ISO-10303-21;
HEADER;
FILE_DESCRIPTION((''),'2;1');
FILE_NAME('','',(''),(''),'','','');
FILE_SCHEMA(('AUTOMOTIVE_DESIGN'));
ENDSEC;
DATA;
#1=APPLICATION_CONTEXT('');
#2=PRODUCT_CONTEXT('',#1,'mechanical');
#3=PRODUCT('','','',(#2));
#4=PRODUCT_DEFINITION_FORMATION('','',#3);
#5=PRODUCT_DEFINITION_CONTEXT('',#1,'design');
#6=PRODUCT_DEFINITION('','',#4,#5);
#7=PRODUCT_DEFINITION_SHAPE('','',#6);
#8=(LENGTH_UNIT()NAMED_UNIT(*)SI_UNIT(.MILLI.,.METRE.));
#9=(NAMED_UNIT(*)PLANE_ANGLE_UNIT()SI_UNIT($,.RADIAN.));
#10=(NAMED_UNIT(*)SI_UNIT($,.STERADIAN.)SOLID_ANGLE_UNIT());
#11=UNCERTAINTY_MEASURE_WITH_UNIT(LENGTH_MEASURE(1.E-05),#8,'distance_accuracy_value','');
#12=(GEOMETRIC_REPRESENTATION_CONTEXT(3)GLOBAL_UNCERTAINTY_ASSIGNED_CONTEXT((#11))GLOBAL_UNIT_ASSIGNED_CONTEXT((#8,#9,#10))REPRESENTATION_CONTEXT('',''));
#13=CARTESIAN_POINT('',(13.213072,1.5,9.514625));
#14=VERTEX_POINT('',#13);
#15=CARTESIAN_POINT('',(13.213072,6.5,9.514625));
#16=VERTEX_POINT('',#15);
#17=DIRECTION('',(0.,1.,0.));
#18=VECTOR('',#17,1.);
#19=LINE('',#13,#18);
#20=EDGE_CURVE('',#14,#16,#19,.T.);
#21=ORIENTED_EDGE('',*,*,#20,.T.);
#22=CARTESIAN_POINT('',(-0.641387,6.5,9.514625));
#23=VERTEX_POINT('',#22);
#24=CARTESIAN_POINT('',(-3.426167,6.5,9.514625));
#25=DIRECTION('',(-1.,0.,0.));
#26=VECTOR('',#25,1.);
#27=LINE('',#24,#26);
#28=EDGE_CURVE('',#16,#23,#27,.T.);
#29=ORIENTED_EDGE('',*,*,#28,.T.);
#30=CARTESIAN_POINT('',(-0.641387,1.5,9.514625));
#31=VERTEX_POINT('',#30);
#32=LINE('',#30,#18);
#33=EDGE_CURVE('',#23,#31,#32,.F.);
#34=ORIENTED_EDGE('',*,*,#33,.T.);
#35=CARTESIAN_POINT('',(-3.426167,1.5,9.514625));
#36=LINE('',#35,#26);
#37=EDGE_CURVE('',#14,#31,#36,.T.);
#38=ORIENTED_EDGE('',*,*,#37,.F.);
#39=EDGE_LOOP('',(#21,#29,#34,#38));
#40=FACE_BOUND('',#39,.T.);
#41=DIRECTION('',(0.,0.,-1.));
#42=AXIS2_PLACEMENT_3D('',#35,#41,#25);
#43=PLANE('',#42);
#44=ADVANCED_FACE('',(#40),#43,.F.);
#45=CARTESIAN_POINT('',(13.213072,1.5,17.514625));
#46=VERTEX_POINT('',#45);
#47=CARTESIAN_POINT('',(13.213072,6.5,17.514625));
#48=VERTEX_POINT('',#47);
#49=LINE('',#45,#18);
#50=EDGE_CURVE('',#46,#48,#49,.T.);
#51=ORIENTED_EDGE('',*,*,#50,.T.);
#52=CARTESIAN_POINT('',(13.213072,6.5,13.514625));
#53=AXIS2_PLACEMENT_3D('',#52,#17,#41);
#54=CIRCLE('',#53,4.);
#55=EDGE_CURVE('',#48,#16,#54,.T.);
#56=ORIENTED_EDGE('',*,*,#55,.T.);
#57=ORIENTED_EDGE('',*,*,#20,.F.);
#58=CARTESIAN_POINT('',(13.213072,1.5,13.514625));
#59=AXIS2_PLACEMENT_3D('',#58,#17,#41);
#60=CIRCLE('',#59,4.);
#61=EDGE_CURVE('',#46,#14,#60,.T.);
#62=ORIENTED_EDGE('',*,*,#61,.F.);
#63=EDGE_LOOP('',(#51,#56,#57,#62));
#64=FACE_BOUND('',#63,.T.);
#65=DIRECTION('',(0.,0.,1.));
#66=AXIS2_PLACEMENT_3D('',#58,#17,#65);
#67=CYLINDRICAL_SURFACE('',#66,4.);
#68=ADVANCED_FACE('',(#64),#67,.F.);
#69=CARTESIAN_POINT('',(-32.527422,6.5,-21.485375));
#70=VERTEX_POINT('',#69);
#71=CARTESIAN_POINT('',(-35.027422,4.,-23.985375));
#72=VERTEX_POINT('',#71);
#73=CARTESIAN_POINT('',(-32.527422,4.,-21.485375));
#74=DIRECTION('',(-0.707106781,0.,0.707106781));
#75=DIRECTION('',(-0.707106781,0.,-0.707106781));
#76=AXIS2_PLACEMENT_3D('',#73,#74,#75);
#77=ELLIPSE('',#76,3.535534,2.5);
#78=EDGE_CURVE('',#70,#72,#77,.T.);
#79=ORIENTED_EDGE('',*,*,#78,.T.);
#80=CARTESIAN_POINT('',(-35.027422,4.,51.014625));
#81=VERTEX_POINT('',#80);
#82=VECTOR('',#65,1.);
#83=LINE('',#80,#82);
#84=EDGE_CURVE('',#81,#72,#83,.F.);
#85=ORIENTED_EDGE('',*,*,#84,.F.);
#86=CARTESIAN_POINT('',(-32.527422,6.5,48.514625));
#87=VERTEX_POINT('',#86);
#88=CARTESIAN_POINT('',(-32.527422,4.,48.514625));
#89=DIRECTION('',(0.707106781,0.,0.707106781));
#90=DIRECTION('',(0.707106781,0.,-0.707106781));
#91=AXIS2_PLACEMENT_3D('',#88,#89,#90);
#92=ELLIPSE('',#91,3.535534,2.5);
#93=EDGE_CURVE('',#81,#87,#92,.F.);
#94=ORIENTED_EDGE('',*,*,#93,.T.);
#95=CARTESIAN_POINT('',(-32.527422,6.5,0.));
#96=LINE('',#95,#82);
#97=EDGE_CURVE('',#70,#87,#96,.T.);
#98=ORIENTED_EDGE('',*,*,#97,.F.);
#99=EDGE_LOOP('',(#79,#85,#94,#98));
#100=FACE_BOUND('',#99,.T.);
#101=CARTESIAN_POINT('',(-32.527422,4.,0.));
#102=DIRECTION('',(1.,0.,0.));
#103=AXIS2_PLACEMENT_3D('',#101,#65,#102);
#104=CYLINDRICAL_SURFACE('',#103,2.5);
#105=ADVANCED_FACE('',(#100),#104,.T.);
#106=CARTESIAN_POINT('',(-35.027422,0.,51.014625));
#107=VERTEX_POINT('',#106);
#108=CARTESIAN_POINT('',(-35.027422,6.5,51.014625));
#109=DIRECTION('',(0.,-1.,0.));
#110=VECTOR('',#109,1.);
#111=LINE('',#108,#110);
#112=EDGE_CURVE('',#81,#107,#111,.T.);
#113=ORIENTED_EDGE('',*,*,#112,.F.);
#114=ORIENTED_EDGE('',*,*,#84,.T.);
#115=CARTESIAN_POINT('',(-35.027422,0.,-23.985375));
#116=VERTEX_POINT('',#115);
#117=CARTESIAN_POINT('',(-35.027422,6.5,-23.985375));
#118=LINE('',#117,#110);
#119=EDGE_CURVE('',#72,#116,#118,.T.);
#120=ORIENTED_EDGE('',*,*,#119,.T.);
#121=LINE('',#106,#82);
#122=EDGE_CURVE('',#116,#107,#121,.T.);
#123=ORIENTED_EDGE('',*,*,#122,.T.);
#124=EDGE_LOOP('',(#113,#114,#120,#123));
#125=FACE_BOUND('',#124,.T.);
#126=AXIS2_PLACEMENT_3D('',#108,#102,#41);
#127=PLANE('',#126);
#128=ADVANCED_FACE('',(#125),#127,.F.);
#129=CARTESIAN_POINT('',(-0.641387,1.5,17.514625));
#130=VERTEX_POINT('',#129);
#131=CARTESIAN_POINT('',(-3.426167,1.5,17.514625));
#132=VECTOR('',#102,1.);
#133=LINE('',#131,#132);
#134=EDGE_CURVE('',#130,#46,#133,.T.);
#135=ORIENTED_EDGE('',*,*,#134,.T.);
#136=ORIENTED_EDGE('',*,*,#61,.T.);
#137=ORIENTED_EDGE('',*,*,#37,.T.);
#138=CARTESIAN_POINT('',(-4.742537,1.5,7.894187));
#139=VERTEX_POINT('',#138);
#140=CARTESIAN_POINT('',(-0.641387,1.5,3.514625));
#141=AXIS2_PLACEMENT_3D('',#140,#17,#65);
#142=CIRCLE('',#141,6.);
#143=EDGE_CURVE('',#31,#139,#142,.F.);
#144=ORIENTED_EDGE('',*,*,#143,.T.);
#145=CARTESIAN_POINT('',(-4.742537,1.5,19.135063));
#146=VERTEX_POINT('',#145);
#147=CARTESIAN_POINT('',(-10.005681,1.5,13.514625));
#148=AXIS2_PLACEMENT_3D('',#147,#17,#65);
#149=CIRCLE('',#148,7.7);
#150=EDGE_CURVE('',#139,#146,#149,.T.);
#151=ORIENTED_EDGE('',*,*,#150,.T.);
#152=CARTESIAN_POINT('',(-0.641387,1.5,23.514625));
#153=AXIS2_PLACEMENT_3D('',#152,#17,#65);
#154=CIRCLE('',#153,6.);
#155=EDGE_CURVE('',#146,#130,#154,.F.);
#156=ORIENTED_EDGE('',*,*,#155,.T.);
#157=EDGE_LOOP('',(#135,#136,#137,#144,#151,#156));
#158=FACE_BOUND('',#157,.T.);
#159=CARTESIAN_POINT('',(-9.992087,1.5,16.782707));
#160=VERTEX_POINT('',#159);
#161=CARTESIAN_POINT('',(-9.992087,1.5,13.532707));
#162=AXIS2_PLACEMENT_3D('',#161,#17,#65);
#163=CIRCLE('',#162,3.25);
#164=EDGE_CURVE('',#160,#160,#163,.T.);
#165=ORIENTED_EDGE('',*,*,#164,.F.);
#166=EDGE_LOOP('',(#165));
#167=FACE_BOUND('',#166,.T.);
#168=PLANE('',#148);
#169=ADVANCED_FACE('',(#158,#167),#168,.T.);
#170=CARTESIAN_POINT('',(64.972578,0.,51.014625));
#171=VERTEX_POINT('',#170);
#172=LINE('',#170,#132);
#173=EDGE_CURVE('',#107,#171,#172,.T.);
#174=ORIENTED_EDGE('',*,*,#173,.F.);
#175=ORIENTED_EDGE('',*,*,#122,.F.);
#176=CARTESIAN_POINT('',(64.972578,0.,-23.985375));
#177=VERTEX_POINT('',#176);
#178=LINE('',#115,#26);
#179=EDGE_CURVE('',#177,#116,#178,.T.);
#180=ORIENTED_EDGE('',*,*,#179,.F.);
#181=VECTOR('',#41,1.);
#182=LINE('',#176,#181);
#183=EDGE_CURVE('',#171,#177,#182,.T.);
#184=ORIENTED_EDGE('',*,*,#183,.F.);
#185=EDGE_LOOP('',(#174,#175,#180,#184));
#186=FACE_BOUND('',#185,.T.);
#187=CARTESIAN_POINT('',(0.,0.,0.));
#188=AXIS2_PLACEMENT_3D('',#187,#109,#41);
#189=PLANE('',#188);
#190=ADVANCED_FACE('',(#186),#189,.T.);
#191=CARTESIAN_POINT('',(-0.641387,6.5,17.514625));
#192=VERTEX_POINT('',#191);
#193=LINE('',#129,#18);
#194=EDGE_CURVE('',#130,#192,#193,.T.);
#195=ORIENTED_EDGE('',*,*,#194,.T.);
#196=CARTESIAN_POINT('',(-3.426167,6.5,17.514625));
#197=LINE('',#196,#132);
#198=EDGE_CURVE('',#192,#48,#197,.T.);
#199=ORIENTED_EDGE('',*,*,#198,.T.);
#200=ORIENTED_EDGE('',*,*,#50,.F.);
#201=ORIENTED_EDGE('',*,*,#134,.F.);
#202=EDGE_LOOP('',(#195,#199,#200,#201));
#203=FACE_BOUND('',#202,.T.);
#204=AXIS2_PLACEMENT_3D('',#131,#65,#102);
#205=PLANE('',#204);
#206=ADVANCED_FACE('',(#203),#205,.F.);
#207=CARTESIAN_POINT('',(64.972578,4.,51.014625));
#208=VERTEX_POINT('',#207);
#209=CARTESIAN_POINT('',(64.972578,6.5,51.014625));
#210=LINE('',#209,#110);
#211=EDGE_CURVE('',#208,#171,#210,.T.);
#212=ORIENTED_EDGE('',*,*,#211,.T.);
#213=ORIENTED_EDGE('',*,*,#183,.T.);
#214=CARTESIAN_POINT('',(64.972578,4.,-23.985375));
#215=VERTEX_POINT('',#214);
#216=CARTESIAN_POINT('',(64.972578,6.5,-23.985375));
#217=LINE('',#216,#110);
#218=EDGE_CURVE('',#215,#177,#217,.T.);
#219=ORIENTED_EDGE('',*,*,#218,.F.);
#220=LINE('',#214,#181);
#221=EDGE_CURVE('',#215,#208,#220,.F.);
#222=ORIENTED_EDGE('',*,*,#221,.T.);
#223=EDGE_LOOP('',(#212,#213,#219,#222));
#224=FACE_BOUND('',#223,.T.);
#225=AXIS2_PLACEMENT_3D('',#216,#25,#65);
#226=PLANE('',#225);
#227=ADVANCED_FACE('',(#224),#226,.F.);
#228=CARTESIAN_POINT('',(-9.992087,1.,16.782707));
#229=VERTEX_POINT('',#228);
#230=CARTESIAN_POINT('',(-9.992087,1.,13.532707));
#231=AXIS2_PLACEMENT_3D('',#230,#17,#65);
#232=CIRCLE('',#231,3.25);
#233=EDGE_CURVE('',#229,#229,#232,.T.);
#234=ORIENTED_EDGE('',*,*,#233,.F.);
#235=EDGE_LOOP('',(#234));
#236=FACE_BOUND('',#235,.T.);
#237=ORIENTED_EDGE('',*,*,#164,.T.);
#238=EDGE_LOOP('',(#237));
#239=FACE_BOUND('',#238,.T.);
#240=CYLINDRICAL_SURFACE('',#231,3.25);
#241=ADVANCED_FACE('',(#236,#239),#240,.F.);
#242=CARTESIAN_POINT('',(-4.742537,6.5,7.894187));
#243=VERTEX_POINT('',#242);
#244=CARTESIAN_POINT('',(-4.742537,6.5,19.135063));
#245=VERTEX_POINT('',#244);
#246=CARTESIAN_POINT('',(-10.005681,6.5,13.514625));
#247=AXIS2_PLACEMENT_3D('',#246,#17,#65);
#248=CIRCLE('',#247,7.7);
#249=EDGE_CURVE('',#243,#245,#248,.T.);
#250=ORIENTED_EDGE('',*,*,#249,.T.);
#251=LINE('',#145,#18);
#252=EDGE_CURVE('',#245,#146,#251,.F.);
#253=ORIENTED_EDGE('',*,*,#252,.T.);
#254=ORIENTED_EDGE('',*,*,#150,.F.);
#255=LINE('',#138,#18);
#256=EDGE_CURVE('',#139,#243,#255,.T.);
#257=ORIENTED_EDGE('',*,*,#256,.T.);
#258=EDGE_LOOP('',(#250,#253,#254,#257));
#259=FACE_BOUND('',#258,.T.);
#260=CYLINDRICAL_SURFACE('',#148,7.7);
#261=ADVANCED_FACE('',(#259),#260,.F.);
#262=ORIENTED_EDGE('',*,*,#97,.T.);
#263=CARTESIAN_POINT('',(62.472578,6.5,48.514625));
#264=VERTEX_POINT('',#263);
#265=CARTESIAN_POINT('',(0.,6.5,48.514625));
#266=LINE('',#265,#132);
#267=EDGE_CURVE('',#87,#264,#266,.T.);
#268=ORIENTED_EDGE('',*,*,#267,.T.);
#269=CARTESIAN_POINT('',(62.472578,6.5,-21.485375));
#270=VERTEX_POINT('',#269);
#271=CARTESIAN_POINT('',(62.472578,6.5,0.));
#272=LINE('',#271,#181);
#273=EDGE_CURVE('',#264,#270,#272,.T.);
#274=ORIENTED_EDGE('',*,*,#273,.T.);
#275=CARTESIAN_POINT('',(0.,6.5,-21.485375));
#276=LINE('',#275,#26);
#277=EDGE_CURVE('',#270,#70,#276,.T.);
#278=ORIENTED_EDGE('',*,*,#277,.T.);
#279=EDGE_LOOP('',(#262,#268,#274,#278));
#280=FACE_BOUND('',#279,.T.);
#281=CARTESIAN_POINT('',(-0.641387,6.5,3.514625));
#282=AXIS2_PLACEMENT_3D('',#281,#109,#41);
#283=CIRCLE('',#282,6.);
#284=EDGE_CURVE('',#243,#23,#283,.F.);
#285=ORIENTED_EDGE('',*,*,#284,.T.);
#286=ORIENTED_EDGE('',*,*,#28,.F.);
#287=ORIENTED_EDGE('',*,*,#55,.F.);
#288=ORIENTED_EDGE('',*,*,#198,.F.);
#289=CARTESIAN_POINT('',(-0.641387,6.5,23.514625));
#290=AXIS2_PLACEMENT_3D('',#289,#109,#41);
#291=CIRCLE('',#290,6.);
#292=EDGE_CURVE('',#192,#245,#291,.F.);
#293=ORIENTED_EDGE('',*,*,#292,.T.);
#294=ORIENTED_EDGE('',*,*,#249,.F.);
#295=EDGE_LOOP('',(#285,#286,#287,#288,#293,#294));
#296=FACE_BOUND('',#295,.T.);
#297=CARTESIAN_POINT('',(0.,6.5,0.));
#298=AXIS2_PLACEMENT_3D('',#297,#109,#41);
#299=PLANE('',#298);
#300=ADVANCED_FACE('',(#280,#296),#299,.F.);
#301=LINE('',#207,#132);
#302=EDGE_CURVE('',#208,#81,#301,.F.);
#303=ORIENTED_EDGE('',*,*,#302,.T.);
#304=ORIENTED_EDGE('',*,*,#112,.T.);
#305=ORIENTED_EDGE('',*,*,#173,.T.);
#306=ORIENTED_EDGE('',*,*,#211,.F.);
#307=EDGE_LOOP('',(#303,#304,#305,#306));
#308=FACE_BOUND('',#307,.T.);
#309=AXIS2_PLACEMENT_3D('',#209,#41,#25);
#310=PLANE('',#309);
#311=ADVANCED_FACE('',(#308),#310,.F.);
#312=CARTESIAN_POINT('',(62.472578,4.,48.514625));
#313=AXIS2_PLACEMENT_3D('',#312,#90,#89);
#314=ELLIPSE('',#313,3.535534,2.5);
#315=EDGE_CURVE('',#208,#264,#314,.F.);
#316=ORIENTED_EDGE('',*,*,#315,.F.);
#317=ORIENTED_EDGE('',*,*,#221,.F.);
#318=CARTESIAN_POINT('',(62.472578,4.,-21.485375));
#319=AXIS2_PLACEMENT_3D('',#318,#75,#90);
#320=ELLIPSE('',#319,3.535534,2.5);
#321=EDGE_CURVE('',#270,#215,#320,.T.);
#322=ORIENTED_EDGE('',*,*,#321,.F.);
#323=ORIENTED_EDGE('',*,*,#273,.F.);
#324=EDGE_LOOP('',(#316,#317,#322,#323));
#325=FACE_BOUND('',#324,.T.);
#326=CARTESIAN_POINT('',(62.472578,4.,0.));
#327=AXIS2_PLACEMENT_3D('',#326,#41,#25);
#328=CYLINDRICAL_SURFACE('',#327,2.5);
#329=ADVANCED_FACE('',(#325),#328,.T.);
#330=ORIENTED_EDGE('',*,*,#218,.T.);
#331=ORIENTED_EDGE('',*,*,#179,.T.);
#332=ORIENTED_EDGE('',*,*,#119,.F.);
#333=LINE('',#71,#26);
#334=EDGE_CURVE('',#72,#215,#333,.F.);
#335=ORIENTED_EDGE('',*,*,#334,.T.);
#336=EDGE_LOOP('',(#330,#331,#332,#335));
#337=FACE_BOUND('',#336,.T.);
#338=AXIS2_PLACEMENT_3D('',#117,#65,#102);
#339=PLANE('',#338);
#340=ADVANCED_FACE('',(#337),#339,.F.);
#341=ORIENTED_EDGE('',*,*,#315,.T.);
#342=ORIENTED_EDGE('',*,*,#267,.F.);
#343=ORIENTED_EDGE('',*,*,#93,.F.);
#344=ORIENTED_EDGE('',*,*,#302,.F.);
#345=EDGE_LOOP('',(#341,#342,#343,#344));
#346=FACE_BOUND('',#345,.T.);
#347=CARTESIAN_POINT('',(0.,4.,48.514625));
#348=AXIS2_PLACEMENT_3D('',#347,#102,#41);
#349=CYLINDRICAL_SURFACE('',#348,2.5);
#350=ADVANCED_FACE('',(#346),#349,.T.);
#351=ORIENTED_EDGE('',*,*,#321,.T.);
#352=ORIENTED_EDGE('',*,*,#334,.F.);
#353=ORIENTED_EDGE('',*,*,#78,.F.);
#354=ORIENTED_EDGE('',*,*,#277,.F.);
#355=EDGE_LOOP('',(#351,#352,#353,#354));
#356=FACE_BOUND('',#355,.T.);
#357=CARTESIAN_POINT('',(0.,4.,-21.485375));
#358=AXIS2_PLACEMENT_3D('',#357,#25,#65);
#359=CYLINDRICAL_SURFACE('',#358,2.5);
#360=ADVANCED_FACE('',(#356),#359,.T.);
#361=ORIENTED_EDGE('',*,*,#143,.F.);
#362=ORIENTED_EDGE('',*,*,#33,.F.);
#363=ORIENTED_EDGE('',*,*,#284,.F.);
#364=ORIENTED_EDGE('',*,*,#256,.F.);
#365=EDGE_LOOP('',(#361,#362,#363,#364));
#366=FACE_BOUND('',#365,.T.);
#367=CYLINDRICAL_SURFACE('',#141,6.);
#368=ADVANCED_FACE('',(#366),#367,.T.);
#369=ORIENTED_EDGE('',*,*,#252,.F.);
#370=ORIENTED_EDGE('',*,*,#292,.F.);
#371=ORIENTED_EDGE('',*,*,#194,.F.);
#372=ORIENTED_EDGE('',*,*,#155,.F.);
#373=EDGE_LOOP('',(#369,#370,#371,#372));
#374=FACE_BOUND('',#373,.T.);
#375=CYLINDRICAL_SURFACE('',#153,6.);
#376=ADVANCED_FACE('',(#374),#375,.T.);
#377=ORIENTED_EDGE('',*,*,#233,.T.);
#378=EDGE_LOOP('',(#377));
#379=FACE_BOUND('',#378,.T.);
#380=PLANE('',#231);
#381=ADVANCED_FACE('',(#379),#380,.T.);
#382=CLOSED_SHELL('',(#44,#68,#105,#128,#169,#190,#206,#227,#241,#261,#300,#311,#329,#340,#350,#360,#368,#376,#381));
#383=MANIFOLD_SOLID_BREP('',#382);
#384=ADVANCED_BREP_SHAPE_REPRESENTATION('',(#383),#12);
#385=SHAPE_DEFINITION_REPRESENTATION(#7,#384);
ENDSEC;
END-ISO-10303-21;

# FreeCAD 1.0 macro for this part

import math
import FreeCAD as App
import Part
import Sketcher
Q = App.Units.Quantity


def edges_at(feature, points):
    """Names of the edges that pass closest to the given points."""
    edges = feature.Shape.Edges
    near = lambda p: min(range(len(edges)), key=lambda i: edges[i].distToShape(Part.Vertex(*p))[0])
    return sorted({f"Edge{near(p) + 1}" for p in points})

doc = App.newDocument("Part")
params = doc.addObject("Spreadsheet::Sheet", "Params")
for row, (alias, value) in enumerate([
    ("sketch1_width", "100 mm"),
    ("sketch1_height", "75 mm"),
    ("pad1_length", "6.5 mm"),
    ("fillet_radius", "2.5 mm"),
    ("sketch2_radius", "4 mm"),
    ("sketch2_radius2", "7.7 mm"),
    ("pocket1_length", "5 mm"),
    ("fillet2_radius", "6 mm"),
    ("sketch3_diameter", "6.5 mm"),
    ("pocket2_length", "0.5 mm"),
], start=1):
    params.set(f"A{row}", alias)
    params.set(f"B{row}", "=" + value)
    params.setAlias(f"B{row}", alias)

body = doc.addObject("PartDesign::Body", "Body")

# Sketch on XZ plane
sketch1 = body.newObject("Sketcher::SketchObject", "Sketch")
sketch1.AttachmentSupport = (doc.getObject("XZ_Plane"), [""])
sketch1.MapMode = "FlatFace"
sketch1.addGeometry(Part.LineSegment(App.Vector(-35, -24, 0), App.Vector(-35, 51, 0)), False)
sketch1.addGeometry(Part.LineSegment(App.Vector(-35, 51, 0), App.Vector(65, 51, 0)), False)
sketch1.addGeometry(Part.LineSegment(App.Vector(65, 51, 0), App.Vector(65, -24, 0)), False)
sketch1.addGeometry(Part.LineSegment(App.Vector(65, -24, 0), App.Vector(-35, -24, 0)), False)
sketch1.addConstraint(Sketcher.Constraint("Coincident", 0, 2, 1, 1))
sketch1.addConstraint(Sketcher.Constraint("Coincident", 1, 2, 2, 1))
sketch1.addConstraint(Sketcher.Constraint("Coincident", 2, 2, 3, 1))
sketch1.addConstraint(Sketcher.Constraint("Coincident", 3, 2, 0, 1))
sketch1.addConstraint(Sketcher.Constraint("Vertical", 0))
sketch1.addConstraint(Sketcher.Constraint("Horizontal", 1))
sketch1.addConstraint(Sketcher.Constraint("Vertical", 2))
sketch1.addConstraint(Sketcher.Constraint("Horizontal", 3))
sketch1.addConstraint(Sketcher.Constraint("DistanceX", 1, 1, 1, 2, Q("100 mm")))
sketch1.addConstraint(Sketcher.Constraint("DistanceY", 0, 1, 0, 2, Q("75 mm")))
sketch1.addConstraint(Sketcher.Constraint("DistanceX", 0, 2, -1, 1, Q("35.027422 mm")))
sketch1.addConstraint(Sketcher.Constraint("DistanceY", -1, 1, 0, 2, Q("51.014625 mm")))
sketch1.setExpression("Constraints[8]", "Params.sketch1_width")
sketch1.setExpression("Constraints[9]", "Params.sketch1_height")
pad1 = body.newObject("PartDesign::Pad", "Pad")
pad1.Profile = sketch1
pad1.setExpression("Length", "Params.pad1_length")
pad1.Reversed = True
doc.recompute()

fillet = body.newObject("PartDesign::Fillet", "Fillet")
fillet.Base = (pad1, edges_at(pad1, [
    (64.973, 6.5, 13.515),
    (14.973, 6.5, -23.985),
    (-35.027, 6.5, 13.515),
    (14.973, 6.5, 51.015),
]))
fillet.setExpression("Radius", "Params.fillet_radius")

# Sketch on XZ plane
sketch2 = body.newObject("Sketcher::SketchObject", "Sketch001")
sketch2.AttachmentSupport = (doc.getObject("XZ_Plane"), [""])
sketch2.MapMode = "FlatFace"
sketch2.AttachmentOffset = App.Placement(App.Vector(0, 0, -6.5), App.Rotation())
sketch2.addGeometry(Part.LineSegment(App.Vector(13.2, 9.5, 0), App.Vector(-3.4, 9.5, 0)), False)
sketch2.addGeometry(Part.ArcOfCircle(Part.Circle(App.Vector(-10, 13.5, 0), App.Vector(0, 0, 1), 7.7), math.radians(31), math.radians(329)), False)
sketch2.addGeometry(Part.LineSegment(App.Vector(-3.4, 17.5, 0), App.Vector(13.2, 17.5, 0)), False)
sketch2.addGeometry(Part.ArcOfCircle(Part.Circle(App.Vector(13.2, 13.5, 0), App.Vector(0, 0, 1), 4), math.radians(-90), math.radians(90)), False)
sketch2.addConstraint(Sketcher.Constraint("Coincident", 0, 2, 1, 2))
sketch2.addConstraint(Sketcher.Constraint("Coincident", 1, 1, 2, 1))
sketch2.addConstraint(Sketcher.Constraint("Tangent", 2, 2, 3, 2))
sketch2.addConstraint(Sketcher.Constraint("Tangent", 3, 1, 0, 1))
sketch2.addConstraint(Sketcher.Constraint("Horizontal", 0))
sketch2.addConstraint(Sketcher.Constraint("Horizontal", 2))
sketch2.addConstraint(Sketcher.Constraint("Horizontal", 1, 3, 3, 3))
sketch2.addConstraint(Sketcher.Constraint("Radius", 3, Q("4 mm")))
sketch2.addConstraint(Sketcher.Constraint("Radius", 1, Q("7.7 mm")))
sketch2.addConstraint(Sketcher.Constraint("DistanceX", 0, 2, 0, 1, Q("16.639239 mm")))
sketch2.addConstraint(Sketcher.Constraint("DistanceX", 1, 3, -1, 1, Q("10.005681 mm")))
sketch2.addConstraint(Sketcher.Constraint("DistanceY", -1, 1, 1, 3, Q("13.514625 mm")))
sketch2.setExpression("Constraints[7]", "Params.sketch2_radius")
sketch2.setExpression("Constraints[8]", "Params.sketch2_radius2")
pocket1 = body.newObject("PartDesign::Pocket", "Pocket")
pocket1.Profile = sketch2
pocket1.setExpression("Length", "Params.pocket1_length")
pocket1.Reversed = True
doc.recompute()

fillet2 = body.newObject("PartDesign::Fillet", "Fillet001")
fillet2.Base = (pocket1, edges_at(pocket1, [(-3.426, 4, 17.515), (-3.426, 4, 9.515)]))
fillet2.setExpression("Radius", "Params.fillet2_radius")

# Sketch on XZ plane
sketch3 = body.newObject("Sketcher::SketchObject", "Sketch002")
sketch3.AttachmentSupport = (doc.getObject("XZ_Plane"), [""])
sketch3.MapMode = "FlatFace"
sketch3.AttachmentOffset = App.Placement(App.Vector(0, 0, -1.5), App.Rotation())
sketch3.addGeometry(Part.Circle(App.Vector(-10, 13.5, 0), App.Vector(0, 0, 1), 3.2), False)
sketch3.addConstraint(Sketcher.Constraint("Diameter", 0, Q("6.5 mm")))
sketch3.addConstraint(Sketcher.Constraint("DistanceX", 0, 3, -1, 1, Q("9.992087 mm")))
sketch3.addConstraint(Sketcher.Constraint("DistanceY", -1, 1, 0, 3, Q("13.532707 mm")))
sketch3.setExpression("Constraints[0]", "Params.sketch3_diameter")
pocket2 = body.newObject("PartDesign::Pocket", "Pocket001")
pocket2.Profile = sketch3
pocket2.setExpression("Length", "Params.pocket2_length")
pocket2.Reversed = True

doc.recompute()
